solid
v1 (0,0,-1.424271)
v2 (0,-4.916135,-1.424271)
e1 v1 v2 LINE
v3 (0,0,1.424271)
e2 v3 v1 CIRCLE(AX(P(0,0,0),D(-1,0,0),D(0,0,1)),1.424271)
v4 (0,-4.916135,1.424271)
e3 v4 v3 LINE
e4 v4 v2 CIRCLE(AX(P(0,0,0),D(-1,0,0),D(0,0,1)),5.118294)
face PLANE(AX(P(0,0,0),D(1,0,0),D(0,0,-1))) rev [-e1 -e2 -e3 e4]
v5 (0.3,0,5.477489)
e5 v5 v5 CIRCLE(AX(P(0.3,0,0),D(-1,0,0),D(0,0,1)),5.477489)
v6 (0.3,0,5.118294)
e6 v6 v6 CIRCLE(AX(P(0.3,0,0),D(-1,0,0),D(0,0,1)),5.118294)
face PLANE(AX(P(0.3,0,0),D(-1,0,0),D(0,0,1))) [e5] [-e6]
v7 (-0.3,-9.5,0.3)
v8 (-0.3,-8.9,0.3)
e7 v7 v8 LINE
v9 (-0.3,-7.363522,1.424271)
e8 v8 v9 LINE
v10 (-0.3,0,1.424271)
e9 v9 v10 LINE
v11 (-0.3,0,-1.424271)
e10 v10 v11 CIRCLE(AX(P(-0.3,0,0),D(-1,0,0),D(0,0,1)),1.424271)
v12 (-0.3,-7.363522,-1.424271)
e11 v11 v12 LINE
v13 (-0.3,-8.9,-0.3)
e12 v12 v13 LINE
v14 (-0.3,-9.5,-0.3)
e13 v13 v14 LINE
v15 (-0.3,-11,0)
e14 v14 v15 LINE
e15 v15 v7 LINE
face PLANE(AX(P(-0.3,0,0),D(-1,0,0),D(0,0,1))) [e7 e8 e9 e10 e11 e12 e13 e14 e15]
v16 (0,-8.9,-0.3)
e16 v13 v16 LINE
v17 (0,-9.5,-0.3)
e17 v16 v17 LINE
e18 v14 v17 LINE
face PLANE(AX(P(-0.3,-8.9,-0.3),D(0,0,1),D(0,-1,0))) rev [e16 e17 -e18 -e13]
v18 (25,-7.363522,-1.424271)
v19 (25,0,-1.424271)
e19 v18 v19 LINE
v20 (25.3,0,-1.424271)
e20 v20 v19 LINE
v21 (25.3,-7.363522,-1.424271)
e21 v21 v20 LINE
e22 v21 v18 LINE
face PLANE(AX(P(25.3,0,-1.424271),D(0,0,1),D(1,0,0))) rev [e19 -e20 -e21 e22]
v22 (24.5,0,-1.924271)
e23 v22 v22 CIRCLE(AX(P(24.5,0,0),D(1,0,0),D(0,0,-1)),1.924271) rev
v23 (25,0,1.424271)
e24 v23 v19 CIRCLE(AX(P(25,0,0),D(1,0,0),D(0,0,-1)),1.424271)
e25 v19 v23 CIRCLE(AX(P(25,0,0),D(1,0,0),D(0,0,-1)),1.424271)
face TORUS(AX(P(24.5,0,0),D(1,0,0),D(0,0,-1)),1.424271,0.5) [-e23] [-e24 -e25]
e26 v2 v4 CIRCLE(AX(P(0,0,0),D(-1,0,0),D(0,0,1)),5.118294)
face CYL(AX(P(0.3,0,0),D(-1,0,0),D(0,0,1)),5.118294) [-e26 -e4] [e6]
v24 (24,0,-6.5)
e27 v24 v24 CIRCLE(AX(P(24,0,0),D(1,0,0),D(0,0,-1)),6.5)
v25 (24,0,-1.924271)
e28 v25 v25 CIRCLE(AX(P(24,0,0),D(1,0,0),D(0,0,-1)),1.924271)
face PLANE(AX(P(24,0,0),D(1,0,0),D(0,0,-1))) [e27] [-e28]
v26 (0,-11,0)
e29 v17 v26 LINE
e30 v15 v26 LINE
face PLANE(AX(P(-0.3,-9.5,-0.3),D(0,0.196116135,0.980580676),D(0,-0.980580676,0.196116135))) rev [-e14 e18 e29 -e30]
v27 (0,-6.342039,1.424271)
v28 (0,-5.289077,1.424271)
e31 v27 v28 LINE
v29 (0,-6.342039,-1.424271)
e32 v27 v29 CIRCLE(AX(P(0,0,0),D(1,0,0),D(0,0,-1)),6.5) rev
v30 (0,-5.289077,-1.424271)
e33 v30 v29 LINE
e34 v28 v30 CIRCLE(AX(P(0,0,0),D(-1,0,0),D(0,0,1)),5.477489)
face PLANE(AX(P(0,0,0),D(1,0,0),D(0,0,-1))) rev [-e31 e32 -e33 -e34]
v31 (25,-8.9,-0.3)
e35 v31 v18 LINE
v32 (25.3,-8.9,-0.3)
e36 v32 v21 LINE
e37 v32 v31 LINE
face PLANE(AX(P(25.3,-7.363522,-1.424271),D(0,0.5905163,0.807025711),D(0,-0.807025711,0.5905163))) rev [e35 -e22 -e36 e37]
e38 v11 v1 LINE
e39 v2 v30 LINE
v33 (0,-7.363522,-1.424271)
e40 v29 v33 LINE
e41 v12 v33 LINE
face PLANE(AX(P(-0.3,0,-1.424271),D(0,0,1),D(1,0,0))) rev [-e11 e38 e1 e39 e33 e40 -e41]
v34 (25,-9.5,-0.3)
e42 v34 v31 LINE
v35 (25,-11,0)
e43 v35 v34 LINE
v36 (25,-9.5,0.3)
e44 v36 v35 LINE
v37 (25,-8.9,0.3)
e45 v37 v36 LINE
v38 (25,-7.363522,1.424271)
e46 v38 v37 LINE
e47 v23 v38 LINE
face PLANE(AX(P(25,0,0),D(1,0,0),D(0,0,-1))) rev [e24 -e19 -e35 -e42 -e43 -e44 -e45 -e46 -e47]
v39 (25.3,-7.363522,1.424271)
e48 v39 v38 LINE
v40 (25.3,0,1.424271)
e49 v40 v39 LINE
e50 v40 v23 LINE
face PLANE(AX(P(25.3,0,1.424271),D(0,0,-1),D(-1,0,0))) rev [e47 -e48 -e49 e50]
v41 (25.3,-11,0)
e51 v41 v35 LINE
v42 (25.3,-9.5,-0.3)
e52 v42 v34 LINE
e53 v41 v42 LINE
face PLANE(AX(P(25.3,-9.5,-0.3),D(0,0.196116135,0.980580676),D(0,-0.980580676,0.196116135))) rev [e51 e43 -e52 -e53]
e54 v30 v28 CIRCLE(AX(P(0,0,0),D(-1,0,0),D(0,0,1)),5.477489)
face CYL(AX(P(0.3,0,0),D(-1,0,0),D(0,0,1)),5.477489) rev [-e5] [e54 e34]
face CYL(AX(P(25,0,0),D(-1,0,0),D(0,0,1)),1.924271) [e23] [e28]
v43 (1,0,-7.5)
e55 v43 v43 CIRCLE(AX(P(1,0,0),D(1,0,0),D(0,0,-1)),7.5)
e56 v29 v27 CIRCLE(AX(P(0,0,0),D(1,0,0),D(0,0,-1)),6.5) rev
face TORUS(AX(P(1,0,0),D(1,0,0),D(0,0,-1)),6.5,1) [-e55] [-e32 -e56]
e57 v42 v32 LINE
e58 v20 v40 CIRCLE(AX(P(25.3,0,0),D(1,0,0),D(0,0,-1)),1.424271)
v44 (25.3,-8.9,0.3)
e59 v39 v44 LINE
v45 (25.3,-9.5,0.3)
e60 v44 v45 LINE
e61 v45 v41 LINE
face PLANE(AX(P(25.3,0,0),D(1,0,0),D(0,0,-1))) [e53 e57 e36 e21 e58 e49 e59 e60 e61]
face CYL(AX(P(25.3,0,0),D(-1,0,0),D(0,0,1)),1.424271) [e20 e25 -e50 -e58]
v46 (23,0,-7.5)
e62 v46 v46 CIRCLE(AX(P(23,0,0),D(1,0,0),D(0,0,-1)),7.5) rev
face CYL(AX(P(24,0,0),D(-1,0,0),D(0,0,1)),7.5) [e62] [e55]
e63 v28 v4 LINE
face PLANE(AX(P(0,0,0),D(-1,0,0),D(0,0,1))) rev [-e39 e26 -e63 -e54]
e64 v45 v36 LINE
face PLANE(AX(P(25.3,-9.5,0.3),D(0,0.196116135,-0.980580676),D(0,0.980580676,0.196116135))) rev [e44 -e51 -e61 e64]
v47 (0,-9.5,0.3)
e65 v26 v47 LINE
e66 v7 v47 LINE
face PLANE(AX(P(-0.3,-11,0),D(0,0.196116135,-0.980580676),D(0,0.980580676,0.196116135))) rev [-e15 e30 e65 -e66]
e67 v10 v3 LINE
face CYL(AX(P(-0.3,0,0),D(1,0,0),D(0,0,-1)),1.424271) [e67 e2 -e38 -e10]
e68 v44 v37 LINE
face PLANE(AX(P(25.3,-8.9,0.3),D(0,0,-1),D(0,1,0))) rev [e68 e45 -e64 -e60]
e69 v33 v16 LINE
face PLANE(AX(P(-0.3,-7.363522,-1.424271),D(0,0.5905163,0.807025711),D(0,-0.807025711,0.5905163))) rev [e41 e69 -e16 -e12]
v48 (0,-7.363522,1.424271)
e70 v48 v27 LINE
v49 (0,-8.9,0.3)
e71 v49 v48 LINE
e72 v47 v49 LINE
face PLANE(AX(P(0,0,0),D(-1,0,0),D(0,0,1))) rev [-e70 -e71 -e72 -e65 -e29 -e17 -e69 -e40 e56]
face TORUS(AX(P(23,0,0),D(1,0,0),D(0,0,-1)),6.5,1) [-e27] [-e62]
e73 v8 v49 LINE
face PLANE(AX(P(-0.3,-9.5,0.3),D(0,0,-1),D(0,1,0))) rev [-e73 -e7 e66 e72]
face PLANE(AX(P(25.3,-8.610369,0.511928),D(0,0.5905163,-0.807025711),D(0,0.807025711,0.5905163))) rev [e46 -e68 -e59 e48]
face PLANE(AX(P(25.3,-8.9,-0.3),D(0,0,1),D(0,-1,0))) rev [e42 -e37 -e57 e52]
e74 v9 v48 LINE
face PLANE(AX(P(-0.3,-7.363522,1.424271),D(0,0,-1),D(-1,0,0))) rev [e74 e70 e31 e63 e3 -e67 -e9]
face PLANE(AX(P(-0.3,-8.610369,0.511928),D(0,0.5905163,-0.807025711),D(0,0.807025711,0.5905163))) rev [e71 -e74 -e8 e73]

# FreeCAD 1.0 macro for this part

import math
import FreeCAD as App
import Part
import Sketcher
from FreeCAD import Vector
Q = App.Units.Quantity


def edges_at(feature, points):
    """Names of the edges that pass closest to the given points."""
    edges = feature.Shape.Edges
    near = lambda p: min(range(len(edges)), key=lambda i: edges[i].distToShape(Part.Vertex(*p))[0])
    return sorted({f"Edge{near(p) + 1}" for p in points})

doc = App.newDocument("Part")
body = doc.addObject("PartDesign::Body", "Body")

# Sketch on YZ plane
sketch1 = body.newObject("Sketcher::SketchObject", "Sketch")
sketch1.AttachmentSupport = (doc.getObject("YZ_Plane"), [""])
sketch1.MapMode = "FlatFace"
sketch1.addGeometry(Part.Circle(Vector(0, 0, 0), Vector(0, 0, 1), 8), False)
sketch1.addConstraint(Sketcher.Constraint("Coincident", 0, 3, -1, 1))
sketch1.addConstraint(Sketcher.Constraint("Diameter", 0, Q("15 mm")))
pad1 = body.newObject("PartDesign::Pad", "Pad")
pad1.Profile = sketch1
pad1.Length = 24
doc.recompute()

fillet = body.newObject("PartDesign::Fillet", "Fillet")
fillet.Base = (pad1, edges_at(pad1, [(0, 0, 7.5), (24, 0, 7.5)]))
fillet.Radius = 1

# Sketch on YZ plane
sketch2 = body.newObject("Sketcher::SketchObject", "Sketch001")
sketch2.AttachmentSupport = (doc.getObject("YZ_Plane"), [""])
sketch2.MapMode = "FlatFace"
sketch2.AttachmentOffset = App.Placement(Vector(0, 0, 24), App.Rotation())
sketch2.addGeometry(Part.Circle(Vector(0, 0, 0), Vector(0, 0, 1), 1.9), False)
sketch2.addConstraint(Sketcher.Constraint("Coincident", 0, 3, -1, 1))
sketch2.addConstraint(Sketcher.Constraint("Diameter", 0, Q("3.848542 mm")))
pad2 = body.newObject("PartDesign::Pad", "Pad001")
pad2.Profile = sketch2
pad2.Length = 1
doc.recompute()

fillet2 = body.newObject("PartDesign::Fillet", "Fillet001")
fillet2.Base = (pad2, edges_at(pad2, [(25, 0, 1.924)]))
fillet2.Radius = 0.5

# Sketch on YZ plane
sketch3 = body.newObject("Sketcher::SketchObject", "Sketch002")
sketch3.AttachmentSupport = (doc.getObject("YZ_Plane"), [""])
sketch3.MapMode = "FlatFace"
sketch3.addGeometry(Part.Circle(Vector(0, 0, 0), Vector(0, 0, 1), 5), False)
sketch3.addGeometry(Part.Circle(Vector(0, 0, 0), Vector(0, 0, 1), 5), False)
sketch3.addConstraint(Sketcher.Constraint("Coincident", 0, 3, -1, 1))
sketch3.addConstraint(Sketcher.Constraint("Coincident", 1, 3, -1, 1))
sketch3.addConstraint(Sketcher.Constraint("Diameter", 0, Q("10.954977 mm")))
sketch3.addConstraint(Sketcher.Constraint("Diameter", 1, Q("10.236588 mm")))
pocket1 = body.newObject("PartDesign::Pocket", "Pocket")
pocket1.Profile = sketch3
pocket1.Length = 0.3
pocket1.Reversed = True

# Sketch on YZ plane
sketch4 = body.newObject("Sketcher::SketchObject", "Sketch003")
sketch4.AttachmentSupport = (doc.getObject("YZ_Plane"), [""])
sketch4.MapMode = "FlatFace"
sketch4.AttachmentOffset = App.Placement(Vector(0, 0, 25), App.Rotation())
sketch4.addGeometry(Part.LineSegment(Vector(0, 1.42, 0), Vector(-7.36, 1.42, 0)), False)
sketch4.addGeometry(Part.LineSegment(Vector(-7.36, 1.42, 0), Vector(-8.61, 0.51, 0)), False)
sketch4.addGeometry(Part.LineSegment(Vector(-8.61, 0.51, 0), Vector(-8.9, 0.3, 0)), False)
sketch4.addGeometry(Part.LineSegment(Vector(-8.9, 0.3, 0), Vector(-9.5, 0.3, 0)), False)
sketch4.addGeometry(Part.LineSegment(Vector(-9.5, 0.3, 0), Vector(-11, 0, 0)), False)
sketch4.addGeometry(Part.LineSegment(Vector(-11, 0, 0), Vector(-9.5, -0.3, 0)), False)
sketch4.addGeometry(Part.LineSegment(Vector(-9.5, -0.3, 0), Vector(-8.9, -0.3, 0)), False)
sketch4.addGeometry(Part.LineSegment(Vector(-8.9, -0.3, 0), Vector(-8.6, -0.52, 0)), False)
sketch4.addGeometry(Part.LineSegment(Vector(-8.6, -0.52, 0), Vector(-7.36, -1.42, 0)), False)
sketch4.addGeometry(Part.LineSegment(Vector(-7.36, -1.42, 0), Vector(0, -1.42, 0)), False)
sketch4.addGeometry(Part.ArcOfCircle(Part.Circle(Vector(0, 0, 0), Vector(0, 0, 1), 1.42), math.radians(-90), math.radians(90)), False)
sketch4.addConstraint(Sketcher.Constraint("Coincident", 0, 2, 1, 1))
sketch4.addConstraint(Sketcher.Constraint("Coincident", 1, 2, 2, 1))
sketch4.addConstraint(Sketcher.Constraint("Coincident", 2, 2, 3, 1))
sketch4.addConstraint(Sketcher.Constraint("Coincident", 3, 2, 4, 1))
sketch4.addConstraint(Sketcher.Constraint("Coincident", 4, 2, 5, 1))
sketch4.addConstraint(Sketcher.Constraint("Coincident", 5, 2, 6, 1))
sketch4.addConstraint(Sketcher.Constraint("Coincident", 6, 2, 7, 1))
sketch4.addConstraint(Sketcher.Constraint("Coincident", 7, 2, 8, 1))
sketch4.addConstraint(Sketcher.Constraint("Coincident", 8, 2, 9, 1))
sketch4.addConstraint(Sketcher.Constraint("Tangent", 9, 2, 10, 1))
sketch4.addConstraint(Sketcher.Constraint("Tangent", 10, 2, 0, 1))
sketch4.addConstraint(Sketcher.Constraint("Horizontal", 0))
sketch4.addConstraint(Sketcher.Constraint("Horizontal", 3))
sketch4.addConstraint(Sketcher.Constraint("Horizontal", 6))
sketch4.addConstraint(Sketcher.Constraint("Horizontal", 9))
sketch4.addConstraint(Sketcher.Constraint("Coincident", 10, 3, -1, 1))
sketch4.addConstraint(Sketcher.Constraint("Symmetric", 3, 2, 5, 2, -1))
sketch4.addConstraint(Sketcher.Constraint("PointOnObject", 4, 2, -1))
sketch4.addConstraint(Sketcher.Constraint("Parallel", 1, 2))
sketch4.addConstraint(Sketcher.Constraint("Parallel", 7, 8))
sketch4.addConstraint(Sketcher.Constraint("Vertical", 2, 2, 6, 2))
sketch4.addConstraint(Sketcher.Constraint("Vertical", 0, 2, 8, 2))
sketch4.addConstraint(Sketcher.Constraint("DistanceX", 3, 2, 3, 1, Q("0.6 mm")))
sketch4.addConstraint(Sketcher.Constraint("DistanceX", 4, 2, -1, 1, Q("11 mm")))
sketch4.addConstraint(Sketcher.Constraint("DistanceX", 2, 2, -1, 1, Q("8.9 mm")))
sketch4.addConstraint(Sketcher.Constraint("DistanceY", -1, 1, 2, 2, Q("0.3 mm")))
sketch4.addConstraint(Sketcher.Constraint("Radius", 10, Q("1.424271 mm")))
sketch4.addConstraint(Sketcher.Constraint("DistanceX", 0, 2, 0, 1, Q("7.363522 mm")))
sketch4.addConstraint(Sketcher.Constraint("DistanceY", 8, 2, 1, 2, Q("1.936199 mm")))
sketch4.addConstraint(Sketcher.Constraint("Distance", 7, Q("0.373441 mm")))
pad3 = body.newObject("PartDesign::Pad", "Pad002")
pad3.Profile = sketch4
pad3.Length = 0.3

# Sketch on YZ plane
sketch5 = body.newObject("Sketcher::SketchObject", "Sketch004")
sketch5.AttachmentSupport = (doc.getObject("YZ_Plane"), [""])
sketch5.MapMode = "FlatFace"
sketch5.AttachmentOffset = App.Placement(Vector(0, 0, -0.3), App.Rotation())
sketch5.addGeometry(Part.LineSegment(Vector(-8.9, -0.3, 0), Vector(-9.5, -0.3, 0)), False)
sketch5.addGeometry(Part.LineSegment(Vector(-9.5, -0.3, 0), Vector(-11, 0, 0)), False)
sketch5.addGeometry(Part.LineSegment(Vector(-11, 0, 0), Vector(-9.5, 0.3, 0)), False)
sketch5.addGeometry(Part.LineSegment(Vector(-9.5, 0.3, 0), Vector(-8.9, 0.3, 0)), False)
sketch5.addGeometry(Part.LineSegment(Vector(-8.9, 0.3, 0), Vector(-8.61, 0.51, 0)), False)
sketch5.addGeometry(Part.LineSegment(Vector(-8.61, 0.51, 0), Vector(-7.36, 1.42, 0)), False)
sketch5.addGeometry(Part.LineSegment(Vector(-7.36, 1.42, 0), Vector(0, 1.42, 0)), False)
sketch5.addGeometry(Part.ArcOfCircle(Part.Circle(Vector(0, 0, 0), Vector(0, 0, 1), 1.42), math.radians(-90), math.radians(90)), False)
sketch5.addGeometry(Part.LineSegment(Vector(0, -1.42, 0), Vector(-7.36, -1.42, 0)), False)
sketch5.addGeometry(Part.LineSegment(Vector(-7.36, -1.42, 0), Vector(-8.6, -0.52, 0)), False)
sketch5.addGeometry(Part.LineSegment(Vector(-8.6, -0.52, 0), Vector(-8.9, -0.3, 0)), False)
sketch5.addConstraint(Sketcher.Constraint("Coincident", 0, 2, 1, 1))
sketch5.addConstraint(Sketcher.Constraint("Coincident", 1, 2, 2, 1))
sketch5.addConstraint(Sketcher.Constraint("Coincident", 2, 2, 3, 1))
sketch5.addConstraint(Sketcher.Constraint("Coincident", 3, 2, 4, 1))
sketch5.addConstraint(Sketcher.Constraint("Coincident", 4, 2, 5, 1))
sketch5.addConstraint(Sketcher.Constraint("Coincident", 5, 2, 6, 1))
sketch5.addConstraint(Sketcher.Constraint("Tangent", 6, 2, 7, 2))
sketch5.addConstraint(Sketcher.Constraint("Tangent", 7, 1, 8, 1))
sketch5.addConstraint(Sketcher.Constraint("Coincident", 8, 2, 9, 1))
sketch5.addConstraint(Sketcher.Constraint("Coincident", 9, 2, 10, 1))
sketch5.addConstraint(Sketcher.Constraint("Coincident", 10, 2, 0, 1))
sketch5.addConstraint(Sketcher.Constraint("Horizontal", 0))
sketch5.addConstraint(Sketcher.Constraint("Horizontal", 3))
sketch5.addConstraint(Sketcher.Constraint("Horizontal", 6))
sketch5.addConstraint(Sketcher.Constraint("Horizontal", 8))
sketch5.addConstraint(Sketcher.Constraint("Coincident", 7, 3, -1, 1))
sketch5.addConstraint(Sketcher.Constraint("Symmetric", 0, 2, 2, 2, -1))
sketch5.addConstraint(Sketcher.Constraint("PointOnObject", 1, 2, -1))
sketch5.addConstraint(Sketcher.Constraint("Parallel", 4, 5))
sketch5.addConstraint(Sketcher.Constraint("Parallel", 9, 10))
sketch5.addConstraint(Sketcher.Constraint("Vertical", 5, 2, 8, 2))
sketch5.addConstraint(Sketcher.Constraint("Vertical", 3, 2, 10, 2))
sketch5.addConstraint(Sketcher.Constraint("DistanceX", 0, 2, 0, 1, Q("0.6 mm")))
sketch5.addConstraint(Sketcher.Constraint("DistanceX", 1, 2, -1, 1, Q("11 mm")))
sketch5.addConstraint(Sketcher.Constraint("DistanceX", 0, 2, -1, 1, Q("9.5 mm")))
sketch5.addConstraint(Sketcher.Constraint("DistanceY", 0, 2, -1, 1, Q("0.3 mm")))
sketch5.addConstraint(Sketcher.Constraint("Radius", 7, Q("1.424271 mm")))
sketch5.addConstraint(Sketcher.Constraint("DistanceX", 6, 1, 6, 2, Q("7.363522 mm")))
sketch5.addConstraint(Sketcher.Constraint("DistanceY", 7, 1, 4, 2, Q("1.936199 mm")))
sketch5.addConstraint(Sketcher.Constraint("Distance", 10, Q("0.373441 mm")))
pad4 = body.newObject("PartDesign::Pad", "Pad003")
pad4.Profile = sketch5
pad4.Length = 0.3

doc.recompute()
